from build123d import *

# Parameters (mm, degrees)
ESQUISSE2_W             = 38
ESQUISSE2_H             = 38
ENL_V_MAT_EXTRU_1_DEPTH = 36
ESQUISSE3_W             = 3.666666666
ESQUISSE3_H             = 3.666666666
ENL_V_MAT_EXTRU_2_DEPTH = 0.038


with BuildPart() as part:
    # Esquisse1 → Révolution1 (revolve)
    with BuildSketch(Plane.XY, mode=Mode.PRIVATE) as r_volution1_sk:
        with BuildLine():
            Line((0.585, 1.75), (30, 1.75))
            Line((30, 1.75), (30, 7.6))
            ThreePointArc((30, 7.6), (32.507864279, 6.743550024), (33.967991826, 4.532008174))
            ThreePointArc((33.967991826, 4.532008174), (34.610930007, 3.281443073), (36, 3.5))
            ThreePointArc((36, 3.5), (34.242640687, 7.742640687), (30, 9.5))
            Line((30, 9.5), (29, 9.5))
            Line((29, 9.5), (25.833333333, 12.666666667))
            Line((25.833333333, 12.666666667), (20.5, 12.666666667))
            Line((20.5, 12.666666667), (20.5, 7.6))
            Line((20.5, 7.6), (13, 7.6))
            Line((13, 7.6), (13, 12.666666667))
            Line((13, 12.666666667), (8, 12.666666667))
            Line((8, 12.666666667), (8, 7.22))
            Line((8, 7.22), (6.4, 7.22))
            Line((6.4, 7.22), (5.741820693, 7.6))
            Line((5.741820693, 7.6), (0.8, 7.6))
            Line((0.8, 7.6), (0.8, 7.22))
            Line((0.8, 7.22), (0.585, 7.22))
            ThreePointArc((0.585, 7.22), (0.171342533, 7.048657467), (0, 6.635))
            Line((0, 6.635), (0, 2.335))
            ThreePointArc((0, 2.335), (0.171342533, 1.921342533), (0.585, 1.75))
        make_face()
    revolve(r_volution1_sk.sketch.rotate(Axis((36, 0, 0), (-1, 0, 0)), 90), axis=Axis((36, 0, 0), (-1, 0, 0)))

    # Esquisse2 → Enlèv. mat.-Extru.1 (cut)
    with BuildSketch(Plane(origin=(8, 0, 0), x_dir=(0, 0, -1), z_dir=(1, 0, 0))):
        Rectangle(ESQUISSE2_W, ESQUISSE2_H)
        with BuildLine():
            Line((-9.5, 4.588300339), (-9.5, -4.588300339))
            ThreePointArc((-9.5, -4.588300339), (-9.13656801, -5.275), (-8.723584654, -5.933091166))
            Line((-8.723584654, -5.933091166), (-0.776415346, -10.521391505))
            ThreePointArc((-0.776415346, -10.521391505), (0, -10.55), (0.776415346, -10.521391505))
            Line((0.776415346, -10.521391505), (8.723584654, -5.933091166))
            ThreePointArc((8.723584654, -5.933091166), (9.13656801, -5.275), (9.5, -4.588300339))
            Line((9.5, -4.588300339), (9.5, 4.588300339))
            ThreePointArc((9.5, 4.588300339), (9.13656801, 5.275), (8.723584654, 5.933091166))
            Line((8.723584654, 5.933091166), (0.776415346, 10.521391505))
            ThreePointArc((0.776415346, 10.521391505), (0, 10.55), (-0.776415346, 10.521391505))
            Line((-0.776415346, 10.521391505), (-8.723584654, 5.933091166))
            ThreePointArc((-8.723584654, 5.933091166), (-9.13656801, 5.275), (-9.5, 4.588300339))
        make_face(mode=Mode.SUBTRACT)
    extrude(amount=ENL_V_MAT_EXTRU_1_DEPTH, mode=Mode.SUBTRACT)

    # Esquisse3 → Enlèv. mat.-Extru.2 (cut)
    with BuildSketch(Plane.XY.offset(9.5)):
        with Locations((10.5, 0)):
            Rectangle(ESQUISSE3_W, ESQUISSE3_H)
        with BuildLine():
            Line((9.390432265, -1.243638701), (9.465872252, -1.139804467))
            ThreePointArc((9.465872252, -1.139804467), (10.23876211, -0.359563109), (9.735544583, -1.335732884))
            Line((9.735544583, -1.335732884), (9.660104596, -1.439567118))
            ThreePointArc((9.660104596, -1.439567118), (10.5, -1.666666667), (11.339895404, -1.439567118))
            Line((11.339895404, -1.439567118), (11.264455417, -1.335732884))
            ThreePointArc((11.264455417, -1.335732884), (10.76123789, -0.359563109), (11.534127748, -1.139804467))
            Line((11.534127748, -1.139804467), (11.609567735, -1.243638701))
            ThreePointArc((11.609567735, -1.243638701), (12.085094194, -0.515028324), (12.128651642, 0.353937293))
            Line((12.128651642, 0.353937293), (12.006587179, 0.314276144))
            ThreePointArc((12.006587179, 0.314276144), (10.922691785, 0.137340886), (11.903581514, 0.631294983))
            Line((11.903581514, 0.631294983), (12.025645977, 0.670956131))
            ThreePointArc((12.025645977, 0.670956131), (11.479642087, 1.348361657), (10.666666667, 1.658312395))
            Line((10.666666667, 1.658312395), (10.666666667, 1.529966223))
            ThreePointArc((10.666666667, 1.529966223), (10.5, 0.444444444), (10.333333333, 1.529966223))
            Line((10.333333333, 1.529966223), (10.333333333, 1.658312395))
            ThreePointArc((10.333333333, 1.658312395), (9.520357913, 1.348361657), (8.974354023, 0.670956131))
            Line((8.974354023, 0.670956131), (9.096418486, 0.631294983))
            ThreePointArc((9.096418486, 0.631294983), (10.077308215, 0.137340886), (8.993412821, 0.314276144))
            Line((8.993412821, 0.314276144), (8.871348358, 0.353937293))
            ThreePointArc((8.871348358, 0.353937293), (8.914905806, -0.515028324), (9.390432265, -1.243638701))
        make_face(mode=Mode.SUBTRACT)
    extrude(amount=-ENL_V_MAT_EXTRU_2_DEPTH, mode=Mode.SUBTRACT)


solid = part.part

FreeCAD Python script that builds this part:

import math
import FreeCAD as App
import Part
import Sketcher
Q = App.Units.Quantity

doc = App.newDocument("Part")
body = doc.addObject("PartDesign::Body", "Body")

# Sketch on XY plane
sketch1 = body.newObject("Sketcher::SketchObject", "Sketch")
sketch1.AttachmentSupport = (doc.getObject("XY_Plane"), [""])
sketch1.MapMode = "FlatFace"
sketch1.addGeometry([
    Part.LineSegment(App.Vector(0.585, 1.75, 0), App.Vector(30, 1.75, 0)),  # 0
    Part.LineSegment(App.Vector(30, 1.75, 0), App.Vector(30, 7.6, 0)),  # 1
    Part.ArcOfCircle(Part.Circle(App.Vector(30, 3.5, 0), App.Vector(0, 0, 1), 4.1), math.radians(14.578683), math.radians(90)),  # 2
    Part.ArcOfCircle(Part.Circle(App.Vector(35.154317, 4.351364, 0), App.Vector(0, 0, 1), 1.2), math.radians(171.341956), math.radians(314.8082)),  # 3
    Part.ArcOfCircle(Part.Circle(App.Vector(30, 3.5, 0), App.Vector(0, 0, 1), 6), math.radians(0), math.radians(90)),  # 4
    Part.LineSegment(App.Vector(30, 9.5, 0), App.Vector(29, 9.5, 0)),  # 5
    Part.LineSegment(App.Vector(29, 9.5, 0), App.Vector(25.833333, 12.666667, 0)),  # 6
    Part.LineSegment(App.Vector(25.833333, 12.666667, 0), App.Vector(20.5, 12.666667, 0)),  # 7
    Part.LineSegment(App.Vector(20.5, 12.666667, 0), App.Vector(20.5, 7.6, 0)),  # 8
    Part.LineSegment(App.Vector(20.5, 7.6, 0), App.Vector(13, 7.6, 0)),  # 9
    Part.LineSegment(App.Vector(13, 7.6, 0), App.Vector(13, 12.666667, 0)),  # 10
    Part.LineSegment(App.Vector(13, 12.666667, 0), App.Vector(8, 12.666667, 0)),  # 11
    Part.LineSegment(App.Vector(8, 12.666667, 0), App.Vector(8, 7.22, 0)),  # 12
    Part.LineSegment(App.Vector(8, 7.22, 0), App.Vector(6.4, 7.22, 0)),  # 13
    Part.LineSegment(App.Vector(6.4, 7.22, 0), App.Vector(5.741821, 7.6, 0)),  # 14
    Part.LineSegment(App.Vector(5.741821, 7.6, 0), App.Vector(0.8, 7.6, 0)),  # 15
    Part.LineSegment(App.Vector(0.8, 7.6, 0), App.Vector(0.8, 7.22, 0)),  # 16
    Part.LineSegment(App.Vector(0.8, 7.22, 0), App.Vector(0.585, 7.22, 0)),  # 17
    Part.ArcOfCircle(Part.Circle(App.Vector(0.585, 6.635, 0), App.Vector(0, 0, 1), 0.585), math.radians(90), math.radians(180)),  # 18
    Part.LineSegment(App.Vector(0, 6.635, 0), App.Vector(0, 2.335, 0)),  # 19
    Part.ArcOfCircle(Part.Circle(App.Vector(0.585, 2.335, 0), App.Vector(0, 0, 1), 0.585), math.radians(180), math.radians(270)),  # 20
], False)
sketch1.addConstraint([
    Sketcher.Constraint("Coincident", 0, 2, 1, 1),
    Sketcher.Constraint("Coincident", 1, 2, 2, 2),
    Sketcher.Constraint("Coincident", 2, 1, 3, 1),
    Sketcher.Constraint("Coincident", 3, 2, 4, 1),
    Sketcher.Constraint("Tangent", 4, 2, 5, 1),
    Sketcher.Constraint("Coincident", 5, 2, 6, 1),
    Sketcher.Constraint("Coincident", 6, 2, 7, 1),
    Sketcher.Constraint("Coincident", 7, 2, 8, 1),
    Sketcher.Constraint("Coincident", 8, 2, 9, 1),
    Sketcher.Constraint("Coincident", 9, 2, 10, 1),
    Sketcher.Constraint("Coincident", 10, 2, 11, 1),
    Sketcher.Constraint("Coincident", 11, 2, 12, 1),
    Sketcher.Constraint("Coincident", 12, 2, 13, 1),
    Sketcher.Constraint("Coincident", 13, 2, 14, 1),
    Sketcher.Constraint("Coincident", 14, 2, 15, 1),
    Sketcher.Constraint("Coincident", 15, 2, 16, 1),
    Sketcher.Constraint("Coincident", 16, 2, 17, 1),
    Sketcher.Constraint("Tangent", 17, 2, 18, 1),
    Sketcher.Constraint("Tangent", 18, 2, 19, 1),
    Sketcher.Constraint("Tangent", 19, 2, 20, 1),
    Sketcher.Constraint("Tangent", 20, 2, 0, 1),
    Sketcher.Constraint("Horizontal", 0),
    Sketcher.Constraint("Vertical", 1),
    Sketcher.Constraint("Horizontal", 5),
    Sketcher.Constraint("Horizontal", 7),
    Sketcher.Constraint("Vertical", 8),
    Sketcher.Constraint("Horizontal", 9),
    Sketcher.Constraint("Vertical", 10),
    Sketcher.Constraint("Horizontal", 11),
    Sketcher.Constraint("Vertical", 12),
    Sketcher.Constraint("Horizontal", 13),
    Sketcher.Constraint("Horizontal", 15),
    Sketcher.Constraint("Vertical", 16),
    Sketcher.Constraint("Horizontal", 17),
    Sketcher.Constraint("Vertical", 19),
    Sketcher.Constraint("Coincident", 4, 3, 2, 3),
    Sketcher.Constraint("Equal", 18, 20),
    Sketcher.Constraint("PointOnObject", 18, 2, -2),
    Sketcher.Constraint("Horizontal", 4, 3, 3, 2),
    Sketcher.Constraint("Horizontal", 1, 2, 8, 2),
    Sketcher.Constraint("Horizontal", 7, 2, 10, 2),
    Sketcher.Constraint("Horizontal", 9, 2, 14, 2),
    Sketcher.Constraint("Horizontal", 13, 2, 16, 2),
    Sketcher.Constraint("Vertical", 4, 3, 0, 2),
    Sketcher.Constraint("Radius", 4, Q("6 mm")),
    Sketcher.Constraint("Radius", 2, Q("4.1 mm")),
    Sketcher.Constraint("Radius", 3, Q("1.2 mm")),
    Sketcher.Constraint("DistanceX", 5, 2, 5, 1, Q("1 mm")),
    Sketcher.Constraint("DistanceX", 11, 2, 11, 1, Q("5 mm")),
    Sketcher.Constraint("Angle", 6, Q("135 deg")),
    Sketcher.Constraint("Angle", 14, Q("150 deg")),
    Sketcher.Constraint("DistanceX", 9, 2, 9, 1, Q("7.5 mm")),
    Sketcher.Constraint("DistanceX", 13, 2, 13, 1, Q("1.6 mm")),
    Sketcher.Constraint("DistanceY", 19, 2, 19, 1, Q("4.3 mm")),
    Sketcher.Constraint("DistanceX", -1, 1, 2, 3, Q("30 mm")),
    Sketcher.Constraint("DistanceX", -1, 1, 9, 2, Q("13 mm")),
    Sketcher.Constraint("Radius", 18, Q("0.585 mm")),
    Sketcher.Constraint("DistanceY", 1, 1, 1, 2, Q("5.85 mm")),
    Sketcher.Constraint("DistanceY", -1, 1, 2, 3, Q("3.5 mm")),
    Sketcher.Constraint("DistanceX", -1, 1, 15, 2, Q("0.8 mm")),
    Sketcher.Constraint("DistanceX", 7, 2, 7, 1, Q("5.333333 mm")),
    Sketcher.Constraint("DistanceX", -1, 1, 2, 1, Q("33.967992 mm")),
])
revolution = body.newObject("PartDesign::Revolution", "Revolution")
revolution.Profile = sketch1
revolution.ReferenceAxis = (sketch1, ["H_Axis"])
revolution.Angle = 360

# Sketch on YZ plane
sketch2 = body.newObject("Sketcher::SketchObject", "Sketch001")
sketch2.AttachmentSupport = (doc.getObject("YZ_Plane"), [""])
sketch2.MapMode = "FlatFace"
sketch2.AttachmentOffset = App.Placement(App.Vector(0, 0, 8), App.Rotation())
sketch2.addGeometry([
    Part.LineSegment(App.Vector(19, 19, 0), App.Vector(-19, 19, 0)),  # 0
    Part.LineSegment(App.Vector(-19, 19, 0), App.Vector(-19, -19, 0)),  # 1
    Part.LineSegment(App.Vector(-19, -19, 0), App.Vector(19, -19, 0)),  # 2
    Part.LineSegment(App.Vector(19, -19, 0), App.Vector(19, 19, 0)),  # 3
    Part.LineSegment(App.Vector(-4.5883, 9.5, 0), App.Vector(4.5883, 9.5, 0)),  # 4
    Part.ArcOfCircle(Part.Circle(App.Vector(0, 0, 0), App.Vector(0, 0, 1), 10.55), math.radians(55.779566), math.radians(64.220434)),  # 5
    Part.LineSegment(App.Vector(5.933091, 8.723585, 0), App.Vector(10.521392, 0.776415, 0)),  # 6
    Part.ArcOfCircle(Part.Circle(App.Vector(0, 0, 0), App.Vector(0, 0, 1), 10.55), math.radians(-4.220434), math.radians(4.220434)),  # 7
    Part.LineSegment(App.Vector(10.521392, -0.776415, 0), App.Vector(5.933091, -8.723585, 0)),  # 8
    Part.ArcOfCircle(Part.Circle(App.Vector(0, 0, 0), App.Vector(0, 0, 1), 10.55), math.radians(-64.220434), math.radians(-55.779566)),  # 9
    Part.LineSegment(App.Vector(4.5883, -9.5, 0), App.Vector(-4.5883, -9.5, 0)),  # 10
    Part.ArcOfCircle(Part.Circle(App.Vector(0, 0, 0), App.Vector(0, 0, 1), 10.55), math.radians(-124.220434), math.radians(-115.779566)),  # 11
    Part.LineSegment(App.Vector(-5.933091, -8.723585, 0), App.Vector(-10.521392, -0.776415, 0)),  # 12
    Part.ArcOfCircle(Part.Circle(App.Vector(0, 0, 0), App.Vector(0, 0, 1), 10.55), math.radians(175.779566), math.radians(184.220434)),  # 13
    Part.LineSegment(App.Vector(-10.521392, 0.776415, 0), App.Vector(-5.933091, 8.723585, 0)),  # 14
    Part.ArcOfCircle(Part.Circle(App.Vector(0, 0, 0), App.Vector(0, 0, 1), 10.55), math.radians(115.779566), math.radians(124.220434)),  # 15
], False)
sketch2.addConstraint([
    Sketcher.Constraint("Coincident", 0, 2, 1, 1),
    Sketcher.Constraint("Coincident", 1, 2, 2, 1),
    Sketcher.Constraint("Coincident", 2, 2, 3, 1),
    Sketcher.Constraint("Coincident", 3, 2, 0, 1),
    Sketcher.Constraint("Coincident", 4, 2, 5, 2),
    Sketcher.Constraint("Coincident", 5, 1, 6, 1),
    Sketcher.Constraint("Coincident", 6, 2, 7, 2),
    Sketcher.Constraint("Coincident", 7, 1, 8, 1),
    Sketcher.Constraint("Coincident", 8, 2, 9, 2),
    Sketcher.Constraint("Coincident", 9, 1, 10, 1),
    Sketcher.Constraint("Coincident", 10, 2, 11, 2),
    Sketcher.Constraint("Coincident", 11, 1, 12, 1),
    Sketcher.Constraint("Coincident", 12, 2, 13, 2),
    Sketcher.Constraint("Coincident", 13, 1, 14, 1),
    Sketcher.Constraint("Coincident", 14, 2, 15, 2),
    Sketcher.Constraint("Coincident", 15, 1, 4, 1),
    Sketcher.Constraint("Horizontal", 0),
    Sketcher.Constraint("Vertical", 1),
    Sketcher.Constraint("Horizontal", 2),
    Sketcher.Constraint("Vertical", 3),
    Sketcher.Constraint("Horizontal", 4),
    Sketcher.Constraint("Horizontal", 10),
    Sketcher.Constraint("Coincident", 5, 3, -1, 1),
    Sketcher.Constraint("Coincident", 7, 3, -1, 1),
    Sketcher.Constraint("Coincident", 9, 3, -1, 1),
    Sketcher.Constraint("Coincident", 11, 3, -1, 1),
    Sketcher.Constraint("Coincident", 13, 3, -1, 1),
    Sketcher.Constraint("Coincident", 15, 3, -1, 1),
    Sketcher.Constraint("Equal", 5, 7),
    Sketcher.Constraint("Equal", 7, 9),
    Sketcher.Constraint("Equal", 9, 11),
    Sketcher.Constraint("Equal", 11, 13),
    Sketcher.Constraint("Equal", 13, 15),
    Sketcher.Constraint("Symmetric", 0, 2, 2, 2, -1, 1),
    Sketcher.Constraint("Parallel", 6, 12),
    Sketcher.Constraint("Parallel", 8, 14),
    Sketcher.Constraint("Horizontal", 8, 2, 11, 1),
    Sketcher.Constraint("Horizontal", 7, 1, 12, 2),
    Sketcher.Constraint("Horizontal", 6, 2, 13, 1),
    Sketcher.Constraint("Vertical", 6, 2, 7, 1),
    Sketcher.Constraint("Vertical", 4, 2, 9, 1),
    Sketcher.Constraint("Equal", 2, 1),
    Sketcher.Constraint("DistanceX", 0, 2, 0, 1, Q("38 mm")),
    Sketcher.Constraint("Angle", 6, Q("-60 deg")),
    Sketcher.Constraint("Radius", 5, Q("10.55 mm")),
    Sketcher.Constraint("DistanceY", -1, 1, 4, 2, Q("9.5 mm")),
    Sketcher.Constraint("DistanceY", 7, 1, 5, 1, Q("9.5 mm")),
])
pocket1 = body.newObject("PartDesign::Pocket", "Pocket")
pocket1.Profile = sketch2
pocket1.Length = 36
pocket1.Reversed = True

# Sketch on XY plane
sketch3 = body.newObject("Sketcher::SketchObject", "Sketch002")
sketch3.AttachmentSupport = (doc.getObject("XY_Plane"), [""])
sketch3.MapMode = "FlatFace"
sketch3.AttachmentOffset = App.Placement(App.Vector(0, 0, 9.5), App.Rotation())
sketch3.addGeometry([
    Part.LineSegment(App.Vector(8.666667, 1.833333, 0), App.Vector(8.666667, -1.833333, 0)),  # 0
    Part.LineSegment(App.Vector(8.666667, -1.833333, 0), App.Vector(12.333333, -1.833333, 0)),  # 1
    Part.LineSegment(App.Vector(12.333333, -1.833333, 0), App.Vector(12.333333, 1.833333, 0)),  # 2
    Part.LineSegment(App.Vector(12.333333, 1.833333, 0), App.Vector(8.666667, 1.833333, 0)),  # 3
    Part.LineSegment(App.Vector(9.465872, -1.139804, 0), App.Vector(9.390432, -1.243639, 0)),  # 4
    Part.ArcOfCircle(Part.Circle(App.Vector(10.5, 0, 0), App.Vector(0, 0, 1), 1.666667), math.radians(167.73917), math.radians(228.26083)),  # 5
    Part.LineSegment(App.Vector(8.871348, 0.353937, 0), App.Vector(8.993413, 0.314276, 0)),  # 6
    Part.ArcOfCircle(Part.Circle(App.Vector(9.548943, 0.309017, 0), App.Vector(0, 0, 1), 0.555556), math.radians(179.457603), math.radians(504.542397)),  # 7
    Part.LineSegment(App.Vector(9.096418, 0.631295, 0), App.Vector(8.974354, 0.670956, 0)),  # 8
    Part.ArcOfCircle(Part.Circle(App.Vector(10.5, 0, 0), App.Vector(0, 0, 1), 1.666667), math.radians(95.739171), math.radians(156.26083)),  # 9
    Part.LineSegment(App.Vector(10.333333, 1.658312, 0), App.Vector(10.333333, 1.529966, 0)),  # 10
    Part.ArcOfCircle(Part.Circle(App.Vector(10.5, 1, 0), App.Vector(0, 0, 1), 0.555556), math.radians(107.457603), math.radians(432.542397)),  # 11
    Part.LineSegment(App.Vector(10.666667, 1.529966, 0), App.Vector(10.666667, 1.658312, 0)),  # 12
    Part.ArcOfCircle(Part.Circle(App.Vector(10.5, 0, 0), App.Vector(0, 0, 1), 1.666667), math.radians(23.73917), math.radians(84.260829)),  # 13
    Part.LineSegment(App.Vector(12.025646, 0.670956, 0), App.Vector(11.903582, 0.631295, 0)),  # 14
    Part.ArcOfCircle(Part.Circle(App.Vector(11.451057, 0.309017, 0), App.Vector(0, 0, 1), 0.555556), math.radians(35.457603), math.radians(360.542397)),  # 15
    Part.LineSegment(App.Vector(12.006587, 0.314276, 0), App.Vector(12.128652, 0.353937, 0)),  # 16
    Part.ArcOfCircle(Part.Circle(App.Vector(10.5, 0, 0), App.Vector(0, 0, 1), 1.666667), math.radians(-48.26083), math.radians(12.26083)),  # 17
    Part.LineSegment(App.Vector(11.609568, -1.243639, 0), App.Vector(11.534128, -1.139804, 0)),  # 18
    Part.ArcOfCircle(Part.Circle(App.Vector(11.087785, -0.809017, 0), App.Vector(0, 0, 1), 0.555556), math.radians(-36.542397), math.radians(288.542397)),  # 19
    Part.LineSegment(App.Vector(11.264455, -1.335733, 0), App.Vector(11.339895, -1.439567, 0)),  # 20
    Part.ArcOfCircle(Part.Circle(App.Vector(10.5, 0, 0), App.Vector(0, 0, 1), 1.666667), math.radians(-120.26083), math.radians(-59.73917)),  # 21
    Part.LineSegment(App.Vector(9.660105, -1.439567, 0), App.Vector(9.735545, -1.335733, 0)),  # 22
    Part.ArcOfCircle(Part.Circle(App.Vector(9.912215, -0.809017, 0), App.Vector(0, 0, 1), 0.555556), math.radians(-108.542397), math.radians(216.542397)),  # 23
], False)
sketch3.addConstraint([
    Sketcher.Constraint("Coincident", 0, 2, 1, 1),
    Sketcher.Constraint("Coincident", 1, 2, 2, 1),
    Sketcher.Constraint("Coincident", 2, 2, 3, 1),
    Sketcher.Constraint("Coincident", 3, 2, 0, 1),
    Sketcher.Constraint("Coincident", 4, 2, 5, 2),
    Sketcher.Constraint("Coincident", 5, 1, 6, 1),
    Sketcher.Constraint("Coincident", 6, 2, 7, 1),
    Sketcher.Constraint("Coincident", 7, 2, 8, 1),
    Sketcher.Constraint("Coincident", 8, 2, 9, 2),
    Sketcher.Constraint("Coincident", 9, 1, 10, 1),
    Sketcher.Constraint("Coincident", 10, 2, 11, 1),
    Sketcher.Constraint("Coincident", 11, 2, 12, 1),
    Sketcher.Constraint("Coincident", 12, 2, 13, 2),
    Sketcher.Constraint("Coincident", 13, 1, 14, 1),
    Sketcher.Constraint("Coincident", 14, 2, 15, 1),
    Sketcher.Constraint("Coincident", 15, 2, 16, 1),
    Sketcher.Constraint("Coincident", 16, 2, 17, 2),
    Sketcher.Constraint("Coincident", 17, 1, 18, 1),
    Sketcher.Constraint("Coincident", 18, 2, 19, 1),
    Sketcher.Constraint("Coincident", 19, 2, 20, 1),
    Sketcher.Constraint("Coincident", 20, 2, 21, 2),
    Sketcher.Constraint("Coincident", 21, 1, 22, 1),
    Sketcher.Constraint("Coincident", 22, 2, 23, 1),
    Sketcher.Constraint("Coincident", 23, 2, 4, 1),
    Sketcher.Constraint("Vertical", 0),
    Sketcher.Constraint("Horizontal", 1),
    Sketcher.Constraint("Vertical", 2),
    Sketcher.Constraint("Horizontal", 3),
    Sketcher.Constraint("Vertical", 10),
    Sketcher.Constraint("Vertical", 12),
    Sketcher.Constraint("Coincident", 9, 3, 5, 3),
    Sketcher.Constraint("Coincident", 13, 3, 5, 3),
    Sketcher.Constraint("Coincident", 17, 3, 5, 3),
    Sketcher.Constraint("Coincident", 21, 3, 5, 3),
    Sketcher.Constraint("Equal", 5, 9),
    Sketcher.Constraint("Equal", 7, 11),
    Sketcher.Constraint("Equal", 9, 13),
    Sketcher.Constraint("Equal", 11, 15),
    Sketcher.Constraint("Equal", 13, 17),
    Sketcher.Constraint("Equal", 15, 19),
    Sketcher.Constraint("Equal", 17, 21),
    Sketcher.Constraint("Equal", 19, 23),
    Sketcher.Constraint("PointOnObject", 5, 3, -1),
    Sketcher.Constraint("Parallel", 6, 8),
    Sketcher.Constraint("Parallel", 14, 16),
    Sketcher.Constraint("Parallel", 18, 20),
    Sketcher.Constraint("Parallel", 4, 22),
    Sketcher.Constraint("Horizontal", 7, 3, 15, 3),
    Sketcher.Constraint("Horizontal", 19, 3, 23, 3),
    Sketcher.Constraint("Horizontal", 10, 2, 11, 2),
    Sketcher.Constraint("Horizontal", 9, 1, 12, 2),
    Sketcher.Constraint("Horizontal", 8, 2, 13, 1),
    Sketcher.Constraint("Horizontal", 7, 2, 14, 2),
    Sketcher.Constraint("Horizontal", 6, 2, 15, 2),
    Sketcher.Constraint("Horizontal", 4, 2, 17, 1),
    Sketcher.Constraint("Horizontal", 20, 2, 21, 1),
    Sketcher.Constraint("Horizontal", 19, 2, 22, 2),
    Sketcher.Constraint("Equal", 3, 0),
    Sketcher.Constraint("Equal", 4, 6),
    Sketcher.Constraint("Equal", 6, 8),
    Sketcher.Constraint("Equal", 8, 14),
    Sketcher.Constraint("Equal", 16, 18),
    Sketcher.Constraint("Equal", 18, 20),
    Sketcher.Constraint("Angle", 4, Q("-126 deg")),
    Sketcher.Constraint("Angle", 6, Q("-18 deg")),
    Sketcher.Constraint("DistanceY", -1, 1, 11, 3, Q("1 mm")),
    Sketcher.Constraint("DistanceX", -1, 1, 5, 3, Q("10.5 mm")),
    Sketcher.Constraint("Radius", 5, Q("1.666667 mm")),
    Sketcher.Constraint("Radius", 7, Q("0.555556 mm")),
    Sketcher.Constraint("DistanceX", 6, 2, 23, 3, Q("0.918802 mm")),
    Sketcher.Constraint("DistanceY", 1, 2, 19, 2, Q("0.4976 mm")),
    Sketcher.Constraint("DistanceX", 1, 1, 1, 2, Q("3.666667 mm")),
    Sketcher.Constraint("DistanceY", 10, 2, 10, 1, Q("0.128346 mm")),
    Sketcher.Constraint("DistanceY", 4, 2, -1, 1, Q("1.243639 mm")),
    Sketcher.Constraint("DistanceX", -1, 1, 5, 1, Q("8.871348 mm")),
    Sketcher.Constraint("DistanceX", -1, 1, 7, 2, Q("9.096418 mm")),
    Sketcher.Constraint("DistanceX", 0, 2, 23, 3, Q("1.245548 mm")),
    Sketcher.Constraint("DistanceY", 0, 2, 7, 3, Q("2.14235 mm")),
])
pocket2 = body.newObject("PartDesign::Pocket", "Pocket001")
pocket2.Profile = sketch3
pocket2.Length = 0.038

doc.recompute()
